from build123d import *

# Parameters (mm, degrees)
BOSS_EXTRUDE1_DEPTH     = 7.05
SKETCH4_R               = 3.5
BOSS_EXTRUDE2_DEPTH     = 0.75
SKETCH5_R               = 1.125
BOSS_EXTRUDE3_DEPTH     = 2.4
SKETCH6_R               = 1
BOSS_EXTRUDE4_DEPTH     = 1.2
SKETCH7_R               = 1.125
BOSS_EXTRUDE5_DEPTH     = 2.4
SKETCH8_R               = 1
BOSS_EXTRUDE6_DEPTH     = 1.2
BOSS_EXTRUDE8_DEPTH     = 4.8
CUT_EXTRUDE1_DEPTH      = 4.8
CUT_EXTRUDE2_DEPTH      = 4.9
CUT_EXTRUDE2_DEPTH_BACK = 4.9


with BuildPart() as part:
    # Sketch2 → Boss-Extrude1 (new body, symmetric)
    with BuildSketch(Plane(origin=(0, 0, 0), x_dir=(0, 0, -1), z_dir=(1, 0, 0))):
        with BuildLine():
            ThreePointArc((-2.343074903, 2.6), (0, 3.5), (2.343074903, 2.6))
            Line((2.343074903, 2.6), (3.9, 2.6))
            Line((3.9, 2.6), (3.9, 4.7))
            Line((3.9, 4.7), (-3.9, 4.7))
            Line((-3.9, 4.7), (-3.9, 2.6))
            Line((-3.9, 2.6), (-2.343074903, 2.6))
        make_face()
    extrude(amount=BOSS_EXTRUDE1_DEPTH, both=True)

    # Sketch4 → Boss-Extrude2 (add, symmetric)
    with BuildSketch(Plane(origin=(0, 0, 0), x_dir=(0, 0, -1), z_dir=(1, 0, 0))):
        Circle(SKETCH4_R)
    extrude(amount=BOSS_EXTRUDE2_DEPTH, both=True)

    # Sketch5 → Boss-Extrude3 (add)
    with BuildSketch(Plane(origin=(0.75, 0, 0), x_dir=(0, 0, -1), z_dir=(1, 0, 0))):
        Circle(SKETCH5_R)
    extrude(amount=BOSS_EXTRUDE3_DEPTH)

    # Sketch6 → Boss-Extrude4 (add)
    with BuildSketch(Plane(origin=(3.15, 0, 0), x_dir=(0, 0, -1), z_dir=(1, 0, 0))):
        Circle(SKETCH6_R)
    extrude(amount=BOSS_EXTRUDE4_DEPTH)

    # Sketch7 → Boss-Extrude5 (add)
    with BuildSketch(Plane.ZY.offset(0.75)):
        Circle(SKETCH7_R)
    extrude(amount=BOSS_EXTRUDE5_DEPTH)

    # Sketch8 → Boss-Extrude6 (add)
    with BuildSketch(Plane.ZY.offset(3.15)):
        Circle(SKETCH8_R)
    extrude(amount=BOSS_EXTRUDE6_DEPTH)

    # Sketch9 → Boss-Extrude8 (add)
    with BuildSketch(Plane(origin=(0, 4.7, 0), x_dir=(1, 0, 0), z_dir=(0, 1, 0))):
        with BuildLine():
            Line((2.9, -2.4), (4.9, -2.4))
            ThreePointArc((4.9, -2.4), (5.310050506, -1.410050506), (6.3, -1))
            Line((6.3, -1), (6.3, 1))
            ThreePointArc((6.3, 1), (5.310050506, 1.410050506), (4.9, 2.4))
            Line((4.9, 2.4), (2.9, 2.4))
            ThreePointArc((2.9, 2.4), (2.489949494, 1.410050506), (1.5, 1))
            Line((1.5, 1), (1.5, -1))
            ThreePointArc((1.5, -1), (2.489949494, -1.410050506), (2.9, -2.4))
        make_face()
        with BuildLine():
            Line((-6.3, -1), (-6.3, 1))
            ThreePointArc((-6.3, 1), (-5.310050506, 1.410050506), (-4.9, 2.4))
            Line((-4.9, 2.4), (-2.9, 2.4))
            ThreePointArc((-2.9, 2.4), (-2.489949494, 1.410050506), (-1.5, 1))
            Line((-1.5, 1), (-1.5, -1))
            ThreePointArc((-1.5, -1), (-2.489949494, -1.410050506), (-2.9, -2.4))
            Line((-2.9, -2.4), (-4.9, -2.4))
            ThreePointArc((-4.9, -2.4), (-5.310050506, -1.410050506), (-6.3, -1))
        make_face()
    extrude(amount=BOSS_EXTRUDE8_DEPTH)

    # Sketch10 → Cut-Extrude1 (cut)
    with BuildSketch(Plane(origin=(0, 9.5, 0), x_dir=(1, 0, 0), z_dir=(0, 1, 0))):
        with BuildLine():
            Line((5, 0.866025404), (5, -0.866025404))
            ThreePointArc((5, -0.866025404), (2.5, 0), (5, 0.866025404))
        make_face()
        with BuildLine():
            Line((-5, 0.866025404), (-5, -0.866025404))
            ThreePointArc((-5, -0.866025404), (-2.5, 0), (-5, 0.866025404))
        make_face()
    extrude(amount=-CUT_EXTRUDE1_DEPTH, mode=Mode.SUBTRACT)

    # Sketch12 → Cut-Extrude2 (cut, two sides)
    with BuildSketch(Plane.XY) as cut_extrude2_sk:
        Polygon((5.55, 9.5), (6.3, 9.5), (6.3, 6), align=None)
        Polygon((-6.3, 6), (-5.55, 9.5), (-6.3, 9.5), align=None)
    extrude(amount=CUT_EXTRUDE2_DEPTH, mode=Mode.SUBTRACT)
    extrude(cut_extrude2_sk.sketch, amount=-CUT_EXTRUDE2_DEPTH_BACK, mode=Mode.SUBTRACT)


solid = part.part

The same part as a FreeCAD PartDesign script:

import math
import FreeCAD as App
import Part
import Sketcher
from FreeCAD import Vector
Q = App.Units.Quantity


def add_polygon(sketch, points):
    """Adds a closed chain of lines whose ends are joined by coincident constraints."""
    first, n = sketch.GeometryCount, len(points)
    for a, b in zip(points, points[1:] + points[:1]):
        sketch.addGeometry(Part.LineSegment(App.Vector(*a, 0), App.Vector(*b, 0)), False)
    for i in range(n):
        sketch.addConstraint(Sketcher.Constraint("Coincident", first + i, 2, first + (i + 1) % n, 1))

doc = App.newDocument("Part")
body = doc.addObject("PartDesign::Body", "Body")

sketch1 = body.newObject("Sketcher::SketchObject", "Sketch")
sketch1.AttachmentSupport = (doc.getObject("YZ_Plane"), [""])
sketch1.MapMode = "FlatFace"
sketch1.addGeometry([
    Part.ArcOfCircle(Part.Circle(Vector(0, 0, 0), Vector(0, 0, 1), 3.5), math.radians(-42.024628), math.radians(42.024628)),
    Part.LineSegment(Vector(2.6, -2.343075, 0), Vector(2.6, -3.9, 0)),
    Part.LineSegment(Vector(2.6, -3.9, 0), Vector(4.7, -3.9, 0)),
    Part.LineSegment(Vector(4.7, -3.9, 0), Vector(4.7, 3.9, 0)),
    Part.LineSegment(Vector(4.7, 3.9, 0), Vector(2.6, 3.9, 0)),
    Part.LineSegment(Vector(2.6, 3.9, 0), Vector(2.6, 2.343075, 0)),
], False)
sketch1.addConstraint([
    Sketcher.Constraint("Coincident", 0, 1, 1, 1),
    Sketcher.Constraint("Coincident", 1, 2, 2, 1),
    Sketcher.Constraint("Coincident", 2, 2, 3, 1),
    Sketcher.Constraint("Coincident", 3, 2, 4, 1),
    Sketcher.Constraint("Coincident", 4, 2, 5, 1),
    Sketcher.Constraint("Coincident", 5, 2, 0, 2),
    Sketcher.Constraint("Vertical", 1),
    Sketcher.Constraint("Horizontal", 2),
    Sketcher.Constraint("Vertical", 3),
    Sketcher.Constraint("Horizontal", 4),
    Sketcher.Constraint("Vertical", 5),
    Sketcher.Constraint("Coincident", 0, 3, -1, 1),
    Sketcher.Constraint("Symmetric", 1, 2, 4, 2, -1),
    Sketcher.Constraint("Radius", 0, Q("3.5 mm")),
    Sketcher.Constraint("DistanceX", 2, 1, 2, 2, Q("2.1 mm")),
    Sketcher.Constraint("DistanceY", 3, 1, 3, 2, Q("7.8 mm")),
    Sketcher.Constraint("DistanceX", -1, 1, 0, 1, Q("2.6 mm")),
])
pad1 = body.newObject("PartDesign::Pad", "Pad")
pad1.Profile = sketch1
pad1.Length = 14.1
pad1.Midplane = True

sketch2 = body.newObject("Sketcher::SketchObject", "Sketch001")
sketch2.AttachmentSupport = (doc.getObject("YZ_Plane"), [""])
sketch2.MapMode = "FlatFace"
sketch2.addGeometry(Part.Circle(Vector(0, 0, 0), Vector(0, 0, 1), 3.5), False)
sketch2.addConstraint([
    Sketcher.Constraint("Coincident", 0, 3, -1, 1),
    Sketcher.Constraint("Diameter", 0, Q("7 mm")),
])
pad2 = body.newObject("PartDesign::Pad", "Pad001")
pad2.Profile = sketch2
pad2.Length = 1.5
pad2.Midplane = True

sketch3 = body.newObject("Sketcher::SketchObject", "Sketch002")
sketch3.AttachmentSupport = (doc.getObject("YZ_Plane"), [""])
sketch3.MapMode = "FlatFace"
sketch3.AttachmentOffset = App.Placement(Vector(0, 0, 0.75), App.Rotation())
sketch3.addGeometry(Part.Circle(Vector(0, 0, 0), Vector(0, 0, 1), 1.125), False)
sketch3.addConstraint([
    Sketcher.Constraint("Coincident", 0, 3, -1, 1),
    Sketcher.Constraint("Diameter", 0, Q("2.25 mm")),
])
pad3 = body.newObject("PartDesign::Pad", "Pad002")
pad3.Profile = sketch3
pad3.Length = 2.4

sketch4 = body.newObject("Sketcher::SketchObject", "Sketch003")
sketch4.AttachmentSupport = (doc.getObject("YZ_Plane"), [""])
sketch4.MapMode = "FlatFace"
sketch4.AttachmentOffset = App.Placement(Vector(0, 0, 3.15), App.Rotation())
sketch4.addGeometry(Part.Circle(Vector(0, 0, 0), Vector(0, 0, 1), 1), False)
sketch4.addConstraint([
    Sketcher.Constraint("Coincident", 0, 3, -1, 1),
    Sketcher.Constraint("Diameter", 0, Q("2 mm")),
])
pad4 = body.newObject("PartDesign::Pad", "Pad003")
pad4.Profile = sketch4
pad4.Length = 1.2

sketch5 = body.newObject("Sketcher::SketchObject", "Sketch004")
sketch5.AttachmentSupport = (doc.getObject("YZ_Plane"), [""])
sketch5.MapMode = "FlatFace"
sketch5.AttachmentOffset = App.Placement(Vector(0, 0, -0.75), App.Rotation())
sketch5.addGeometry(Part.Circle(Vector(0, 0, 0), Vector(0, 0, 1), 1.125), False)
sketch5.addConstraint([
    Sketcher.Constraint("Coincident", 0, 3, -1, 1),
    Sketcher.Constraint("Diameter", 0, Q("2.25 mm")),
])
pad5 = body.newObject("PartDesign::Pad", "Pad004")
pad5.Profile = sketch5
pad5.Length = 2.4
pad5.Reversed = True

sketch6 = body.newObject("Sketcher::SketchObject", "Sketch005")
sketch6.AttachmentSupport = (doc.getObject("YZ_Plane"), [""])
sketch6.MapMode = "FlatFace"
sketch6.AttachmentOffset = App.Placement(Vector(0, 0, -3.15), App.Rotation())
sketch6.addGeometry(Part.Circle(Vector(0, 0, 0), Vector(0, 0, 1), 1), False)
sketch6.addConstraint([
    Sketcher.Constraint("Coincident", 0, 3, -1, 1),
    Sketcher.Constraint("Diameter", 0, Q("2 mm")),
])
pad6 = body.newObject("PartDesign::Pad", "Pad005")
pad6.Profile = sketch6
pad6.Length = 1.2
pad6.Reversed = True

sketch7 = body.newObject("Sketcher::SketchObject", "Sketch006")
sketch7.AttachmentSupport = (doc.getObject("XZ_Plane"), [""])
sketch7.MapMode = "FlatFace"
sketch7.AttachmentOffset = App.Placement(Vector(0, 0, -4.7), App.Rotation())
sketch7.addGeometry([
    Part.LineSegment(Vector(2.9, 2.4, 0), Vector(4.9, 2.4, 0)),
    Part.ArcOfCircle(Part.Circle(Vector(6.3, 2.4, 0), Vector(0, 0, 1), 1.4), math.radians(180), math.radians(270)),
    Part.LineSegment(Vector(6.3, 1, 0), Vector(6.3, -1, 0)),
    Part.ArcOfCircle(Part.Circle(Vector(6.3, -2.4, 0), Vector(0, 0, 1), 1.4), math.radians(90), math.radians(180)),
    Part.LineSegment(Vector(4.9, -2.4, 0), Vector(2.9, -2.4, 0)),
    Part.ArcOfCircle(Part.Circle(Vector(1.5, -2.4, 0), Vector(0, 0, 1), 1.4), math.radians(0), math.radians(90)),
    Part.LineSegment(Vector(1.5, -1, 0), Vector(1.5, 1, 0)),
    Part.ArcOfCircle(Part.Circle(Vector(1.5, 2.4, 0), Vector(0, 0, 1), 1.4), math.radians(-90), math.radians(0)),
    Part.LineSegment(Vector(-6.3, -1, 0), Vector(-6.3, 1, 0)),
    Part.ArcOfCircle(Part.Circle(Vector(-6.3, 2.4, 0), Vector(0, 0, 1), 1.4), math.radians(-90), math.radians(0)),
    Part.LineSegment(Vector(-4.9, 2.4, 0), Vector(-2.9, 2.4, 0)),
    Part.ArcOfCircle(Part.Circle(Vector(-1.5, 2.4, 0), Vector(0, 0, 1), 1.4), math.radians(180), math.radians(270)),
    Part.LineSegment(Vector(-1.5, 1, 0), Vector(-1.5, -1, 0)),
    Part.ArcOfCircle(Part.Circle(Vector(-1.5, -2.4, 0), Vector(0, 0, 1), 1.4), math.radians(90), math.radians(180)),
    Part.LineSegment(Vector(-2.9, -2.4, 0), Vector(-4.9, -2.4, 0)),
    Part.ArcOfCircle(Part.Circle(Vector(-6.3, -2.4, 0), Vector(0, 0, 1), 1.4), math.radians(0), math.radians(90)),
], False)
sketch7.addConstraint([
    Sketcher.Constraint("Coincident", 0, 2, 1, 1),
    Sketcher.Constraint("Coincident", 1, 2, 2, 1),
    Sketcher.Constraint("Coincident", 2, 2, 3, 1),
    Sketcher.Constraint("Coincident", 3, 2, 4, 1),
    Sketcher.Constraint("Coincident", 4, 2, 5, 1),
    Sketcher.Constraint("Coincident", 5, 2, 6, 1),
    Sketcher.Constraint("Coincident", 6, 2, 7, 1),
    Sketcher.Constraint("Coincident", 7, 2, 0, 1),
    Sketcher.Constraint("Coincident", 8, 2, 9, 1),
    Sketcher.Constraint("Coincident", 9, 2, 10, 1),
    Sketcher.Constraint("Coincident", 10, 2, 11, 1),
    Sketcher.Constraint("Coincident", 11, 2, 12, 1),
    Sketcher.Constraint("Coincident", 12, 2, 13, 1),
    Sketcher.Constraint("Coincident", 13, 2, 14, 1),
    Sketcher.Constraint("Coincident", 14, 2, 15, 1),
    Sketcher.Constraint("Coincident", 15, 2, 8, 1),
    Sketcher.Constraint("Horizontal", 0),
    Sketcher.Constraint("Vertical", 2),
    Sketcher.Constraint("Horizontal", 4),
    Sketcher.Constraint("Vertical", 6),
    Sketcher.Constraint("Vertical", 8),
    Sketcher.Constraint("Horizontal", 10),
    Sketcher.Constraint("Vertical", 12),
    Sketcher.Constraint("Horizontal", 14),
    Sketcher.Constraint("Equal", 1, 3),
    Sketcher.Constraint("Equal", 3, 5),
    Sketcher.Constraint("Equal", 5, 7),
    Sketcher.Constraint("Equal", 7, 9),
    Sketcher.Constraint("Equal", 9, 11),
    Sketcher.Constraint("Equal", 11, 13),
    Sketcher.Constraint("Equal", 13, 15),
    Sketcher.Constraint("Symmetric", 3, 3, 9, 3, -1, 1),
    Sketcher.Constraint("Symmetric", 5, 3, 11, 3, -1, 1),
    Sketcher.Constraint("Symmetric", 7, 3, 13, 3, -1, 1),
    Sketcher.Constraint("Symmetric", 1, 3, 15, 3, -1, 1),
    Sketcher.Constraint("Symmetric", 1, 3, 9, 3, -2),
    Sketcher.Constraint("Symmetric", 7, 3, 11, 3, -2),
    Sketcher.Constraint("Horizontal", 3, 3, 5, 3),
    Sketcher.Constraint("Horizontal", 11, 3, 0, 2),
    Sketcher.Constraint("Horizontal", 15, 3, 3, 2),
    Sketcher.Constraint("Horizontal", 7, 2, 9, 2),
    Sketcher.Constraint("Horizontal", 4, 2, 13, 2),
    Sketcher.Constraint("Vertical", 3, 3, 1, 2),
    Sketcher.Constraint("Vertical", 7, 3, 5, 2),
    Sketcher.Constraint("Vertical", 15, 3, 8, 2),
    Sketcher.Constraint("Vertical", 13, 3, 11, 2),
    Sketcher.Constraint("Equal", 14, 2),
    Sketcher.Constraint("Radius", 1, Q("1.4 mm")),
    Sketcher.Constraint("DistanceX", 0, 1, 0, 2, Q("2 mm")),
    Sketcher.Constraint("DistanceX", 11, 3, 7, 3, Q("3 mm")),
])
pad7 = body.newObject("PartDesign::Pad", "Pad006")
pad7.Profile = sketch7
pad7.Length = 4.8
pad7.Reversed = True

sketch8 = body.newObject("Sketcher::SketchObject", "Sketch007")
sketch8.AttachmentSupport = (doc.getObject("XZ_Plane"), [""])
sketch8.MapMode = "FlatFace"
sketch8.AttachmentOffset = App.Placement(Vector(0, 0, -9.5), App.Rotation())
sketch8.addGeometry([
    Part.LineSegment(Vector(5, 0.866025, 0), Vector(5, -0.866025, 0)),
    Part.ArcOfCircle(Part.Circle(Vector(3.9, 0, 0), Vector(0, 0, 1), 1.4), math.radians(38.213211), math.radians(321.786789)),
    Part.LineSegment(Vector(-5, -0.866025, 0), Vector(-5, 0.866025, 0)),
    Part.ArcOfCircle(Part.Circle(Vector(-3.9, 0, 0), Vector(0, 0, 1), 1.4), math.radians(-141.786789), math.radians(141.786789)),
], False)
sketch8.addConstraint([
    Sketcher.Constraint("Coincident", 0, 1, 1, 1),
    Sketcher.Constraint("Coincident", 1, 2, 0, 2),
    Sketcher.Constraint("Coincident", 2, 1, 3, 1),
    Sketcher.Constraint("Coincident", 3, 2, 2, 2),
    Sketcher.Constraint("Vertical", 0),
    Sketcher.Constraint("Vertical", 2),
    Sketcher.Constraint("Equal", 1, 3),
    Sketcher.Constraint("Symmetric", 1, 3, 3, 3, -1, 1),
    Sketcher.Constraint("Symmetric", 1, 2, 2, 1, -2),
    Sketcher.Constraint("Radius", 1, Q("1.4 mm")),
    Sketcher.Constraint("DistanceX", -1, 1, 0, 1, Q("5 mm")),
    Sketcher.Constraint("DistanceX", -1, 1, 1, 3, Q("3.9 mm")),
])
pocket1 = body.newObject("PartDesign::Pocket", "Pocket")
pocket1.Profile = sketch8
pocket1.Length = 4.8
pocket1.Reversed = True

sketch9 = body.newObject("Sketcher::SketchObject", "Sketch008")
sketch9.AttachmentSupport = (doc.getObject("XY_Plane"), [""])
sketch9.MapMode = "FlatFace"
add_polygon(sketch9, [(6.3, 9.5), (5.55, 9.5), (6.3, 6)])
add_polygon(sketch9, [(-6.3, 6), (-5.55, 9.5), (-6.3, 9.5)])
sketch9.addConstraint([
    Sketcher.Constraint("Horizontal", 0),
    Sketcher.Constraint("Vertical", 2),
    Sketcher.Constraint("Horizontal", 4),
    Sketcher.Constraint("Vertical", 5),
    Sketcher.Constraint("Symmetric", 0, 2, 3, 2, -2),
    Sketcher.Constraint("Symmetric", 1, 2, 5, 2, -2),
    Sketcher.Constraint("DistanceY", 2, 1, 2, 2, Q("3.5 mm")),
    Sketcher.Constraint("DistanceY", -1, 1, 1, 2, Q("6 mm")),
    Sketcher.Constraint("DistanceX", 0, 2, 0, 1, Q("0.75 mm")),
    Sketcher.Constraint("DistanceX", -1, 1, 1, 2, Q("6.3 mm")),
])
pocket2 = body.newObject("PartDesign::Pocket", "Pocket001")
pocket2.Profile = sketch9
pocket2.Type = "ThroughAll"
pocket2.Midplane = True

doc.recompute()
